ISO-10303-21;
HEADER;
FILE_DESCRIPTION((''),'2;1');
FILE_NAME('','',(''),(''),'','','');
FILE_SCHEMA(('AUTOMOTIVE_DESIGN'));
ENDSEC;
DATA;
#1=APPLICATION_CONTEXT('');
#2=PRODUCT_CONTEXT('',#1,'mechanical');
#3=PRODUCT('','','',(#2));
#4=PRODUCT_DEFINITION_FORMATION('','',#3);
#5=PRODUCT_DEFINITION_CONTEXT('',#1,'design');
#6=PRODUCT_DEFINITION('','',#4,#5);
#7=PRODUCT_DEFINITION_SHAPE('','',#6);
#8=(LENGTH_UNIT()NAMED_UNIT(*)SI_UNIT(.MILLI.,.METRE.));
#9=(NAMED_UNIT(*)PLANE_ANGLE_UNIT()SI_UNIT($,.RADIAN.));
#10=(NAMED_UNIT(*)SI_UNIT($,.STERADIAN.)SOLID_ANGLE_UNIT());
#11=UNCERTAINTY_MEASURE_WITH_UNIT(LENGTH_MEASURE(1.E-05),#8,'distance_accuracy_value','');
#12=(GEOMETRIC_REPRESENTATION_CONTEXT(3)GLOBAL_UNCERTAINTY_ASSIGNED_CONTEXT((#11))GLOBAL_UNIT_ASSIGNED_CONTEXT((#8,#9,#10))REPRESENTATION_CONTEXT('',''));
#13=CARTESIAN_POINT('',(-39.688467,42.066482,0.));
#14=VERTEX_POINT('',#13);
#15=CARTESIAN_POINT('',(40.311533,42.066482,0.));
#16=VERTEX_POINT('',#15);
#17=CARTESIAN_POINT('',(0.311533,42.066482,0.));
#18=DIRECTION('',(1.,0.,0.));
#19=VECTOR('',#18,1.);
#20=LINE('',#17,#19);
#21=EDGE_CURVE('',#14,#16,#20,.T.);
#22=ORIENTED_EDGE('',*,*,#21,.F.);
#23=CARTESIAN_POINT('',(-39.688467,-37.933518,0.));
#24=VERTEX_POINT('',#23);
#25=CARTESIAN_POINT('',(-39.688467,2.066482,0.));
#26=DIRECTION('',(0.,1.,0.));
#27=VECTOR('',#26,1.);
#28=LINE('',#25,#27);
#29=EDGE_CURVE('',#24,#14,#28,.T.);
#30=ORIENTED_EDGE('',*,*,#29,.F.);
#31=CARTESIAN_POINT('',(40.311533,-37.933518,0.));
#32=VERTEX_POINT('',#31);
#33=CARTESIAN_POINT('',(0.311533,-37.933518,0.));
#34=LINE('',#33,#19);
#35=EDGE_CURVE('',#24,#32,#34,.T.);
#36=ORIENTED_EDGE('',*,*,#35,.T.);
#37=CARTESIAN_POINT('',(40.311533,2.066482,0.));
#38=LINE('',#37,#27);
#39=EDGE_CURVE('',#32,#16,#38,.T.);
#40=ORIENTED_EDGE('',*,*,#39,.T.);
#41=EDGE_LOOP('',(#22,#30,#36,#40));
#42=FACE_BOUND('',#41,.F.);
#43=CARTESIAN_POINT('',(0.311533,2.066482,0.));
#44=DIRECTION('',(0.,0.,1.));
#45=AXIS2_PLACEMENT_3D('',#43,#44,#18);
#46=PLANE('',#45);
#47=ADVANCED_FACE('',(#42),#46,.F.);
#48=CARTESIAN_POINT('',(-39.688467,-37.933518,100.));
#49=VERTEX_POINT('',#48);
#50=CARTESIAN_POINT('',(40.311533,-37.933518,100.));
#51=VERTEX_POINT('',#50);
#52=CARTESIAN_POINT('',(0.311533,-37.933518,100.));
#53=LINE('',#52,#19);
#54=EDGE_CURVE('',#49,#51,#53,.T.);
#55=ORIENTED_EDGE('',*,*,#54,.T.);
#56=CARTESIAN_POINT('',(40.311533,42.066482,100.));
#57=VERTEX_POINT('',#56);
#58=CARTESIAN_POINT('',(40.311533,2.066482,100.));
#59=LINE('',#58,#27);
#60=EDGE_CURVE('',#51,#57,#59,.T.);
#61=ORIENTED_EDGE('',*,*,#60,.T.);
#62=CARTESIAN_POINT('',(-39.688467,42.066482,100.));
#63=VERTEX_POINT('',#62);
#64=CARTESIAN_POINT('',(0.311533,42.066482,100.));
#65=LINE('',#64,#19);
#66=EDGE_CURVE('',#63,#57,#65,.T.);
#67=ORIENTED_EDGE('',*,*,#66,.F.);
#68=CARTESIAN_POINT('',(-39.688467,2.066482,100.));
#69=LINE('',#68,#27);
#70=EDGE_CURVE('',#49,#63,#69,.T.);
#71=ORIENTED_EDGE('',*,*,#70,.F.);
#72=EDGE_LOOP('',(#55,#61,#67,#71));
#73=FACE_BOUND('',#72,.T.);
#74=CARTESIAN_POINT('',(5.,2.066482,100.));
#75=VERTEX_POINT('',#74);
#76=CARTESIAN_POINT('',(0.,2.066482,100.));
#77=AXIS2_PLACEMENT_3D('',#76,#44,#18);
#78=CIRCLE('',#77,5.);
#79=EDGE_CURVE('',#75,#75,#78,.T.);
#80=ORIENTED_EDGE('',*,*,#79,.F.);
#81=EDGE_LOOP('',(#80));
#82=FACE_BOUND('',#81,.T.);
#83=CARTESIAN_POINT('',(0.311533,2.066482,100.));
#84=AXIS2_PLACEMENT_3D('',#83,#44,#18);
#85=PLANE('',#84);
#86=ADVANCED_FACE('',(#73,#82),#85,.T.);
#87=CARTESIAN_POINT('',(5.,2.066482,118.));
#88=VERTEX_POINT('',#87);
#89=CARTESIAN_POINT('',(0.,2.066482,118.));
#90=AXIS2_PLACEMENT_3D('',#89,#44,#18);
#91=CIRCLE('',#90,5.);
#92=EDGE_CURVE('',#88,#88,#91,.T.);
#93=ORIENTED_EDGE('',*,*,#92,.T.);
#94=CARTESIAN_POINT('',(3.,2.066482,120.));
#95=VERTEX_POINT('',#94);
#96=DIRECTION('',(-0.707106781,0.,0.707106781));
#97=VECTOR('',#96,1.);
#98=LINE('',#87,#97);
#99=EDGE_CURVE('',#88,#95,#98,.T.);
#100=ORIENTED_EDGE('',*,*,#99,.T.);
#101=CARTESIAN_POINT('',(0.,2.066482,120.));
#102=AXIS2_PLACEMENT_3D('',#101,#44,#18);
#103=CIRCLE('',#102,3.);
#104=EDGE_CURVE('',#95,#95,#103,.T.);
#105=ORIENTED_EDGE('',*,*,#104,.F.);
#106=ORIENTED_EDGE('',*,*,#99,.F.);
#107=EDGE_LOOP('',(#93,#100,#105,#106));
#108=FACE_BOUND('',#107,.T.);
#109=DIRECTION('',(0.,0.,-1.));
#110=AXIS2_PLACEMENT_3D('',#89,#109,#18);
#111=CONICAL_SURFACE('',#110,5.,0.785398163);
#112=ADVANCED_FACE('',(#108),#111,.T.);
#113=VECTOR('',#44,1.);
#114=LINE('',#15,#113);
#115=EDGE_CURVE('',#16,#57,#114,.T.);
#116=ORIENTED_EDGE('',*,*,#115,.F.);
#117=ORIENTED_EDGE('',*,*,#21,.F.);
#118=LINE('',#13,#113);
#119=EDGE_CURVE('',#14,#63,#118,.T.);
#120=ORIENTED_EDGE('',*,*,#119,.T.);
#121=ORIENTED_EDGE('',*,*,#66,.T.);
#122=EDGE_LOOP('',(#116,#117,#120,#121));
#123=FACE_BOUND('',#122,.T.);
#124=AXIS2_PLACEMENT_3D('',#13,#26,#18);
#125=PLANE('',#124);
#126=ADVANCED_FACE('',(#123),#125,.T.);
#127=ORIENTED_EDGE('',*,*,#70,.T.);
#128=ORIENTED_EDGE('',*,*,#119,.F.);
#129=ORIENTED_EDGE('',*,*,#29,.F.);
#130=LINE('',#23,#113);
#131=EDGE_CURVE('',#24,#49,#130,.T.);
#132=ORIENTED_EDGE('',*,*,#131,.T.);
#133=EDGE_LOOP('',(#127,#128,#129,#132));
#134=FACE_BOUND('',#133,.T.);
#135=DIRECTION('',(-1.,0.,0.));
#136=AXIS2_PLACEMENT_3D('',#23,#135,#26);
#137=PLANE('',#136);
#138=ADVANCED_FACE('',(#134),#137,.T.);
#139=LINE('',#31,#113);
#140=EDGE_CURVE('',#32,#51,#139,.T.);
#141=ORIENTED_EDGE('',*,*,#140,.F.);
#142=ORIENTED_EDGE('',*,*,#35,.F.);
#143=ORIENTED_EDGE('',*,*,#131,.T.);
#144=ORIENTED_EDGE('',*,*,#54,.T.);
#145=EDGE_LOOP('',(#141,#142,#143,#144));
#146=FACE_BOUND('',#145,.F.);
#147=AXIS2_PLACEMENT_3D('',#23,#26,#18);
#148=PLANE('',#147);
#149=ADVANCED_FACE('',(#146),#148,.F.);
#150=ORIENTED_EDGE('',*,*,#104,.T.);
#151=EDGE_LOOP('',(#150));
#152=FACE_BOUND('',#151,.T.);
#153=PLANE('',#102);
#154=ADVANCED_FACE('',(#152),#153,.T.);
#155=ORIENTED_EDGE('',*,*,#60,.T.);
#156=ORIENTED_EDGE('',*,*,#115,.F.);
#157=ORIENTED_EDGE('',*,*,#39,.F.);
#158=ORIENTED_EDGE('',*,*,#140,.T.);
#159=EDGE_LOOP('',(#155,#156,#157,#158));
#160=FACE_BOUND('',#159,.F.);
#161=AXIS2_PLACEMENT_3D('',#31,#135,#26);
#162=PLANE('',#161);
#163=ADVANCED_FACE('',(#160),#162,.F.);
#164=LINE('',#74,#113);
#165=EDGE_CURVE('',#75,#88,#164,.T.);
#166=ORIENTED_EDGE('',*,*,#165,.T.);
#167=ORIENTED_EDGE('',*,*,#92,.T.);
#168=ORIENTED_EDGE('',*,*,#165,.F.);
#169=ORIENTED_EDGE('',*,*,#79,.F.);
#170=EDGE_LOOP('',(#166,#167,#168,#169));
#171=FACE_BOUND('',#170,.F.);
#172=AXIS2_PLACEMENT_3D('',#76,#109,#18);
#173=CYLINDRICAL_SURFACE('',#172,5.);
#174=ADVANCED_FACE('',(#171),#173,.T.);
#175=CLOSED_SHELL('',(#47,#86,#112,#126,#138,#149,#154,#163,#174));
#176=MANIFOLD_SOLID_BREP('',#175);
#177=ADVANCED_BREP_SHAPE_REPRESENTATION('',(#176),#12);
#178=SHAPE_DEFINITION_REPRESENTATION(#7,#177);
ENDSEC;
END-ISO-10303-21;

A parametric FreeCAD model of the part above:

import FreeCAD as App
import Part
import Sketcher

V = App.Vector


def edges_at(feature, points):
    """Names of the edges that pass closest to the given points."""
    edges = feature.Shape.Edges
    near = lambda p: min(range(len(edges)), key=lambda i: edges[i].distToShape(Part.Vertex(*p))[0])
    return sorted({f"Edge{near(p) + 1}" for p in points})


def add_polygon(sketch, points):
    """Adds a closed chain of lines whose ends are joined by coincident constraints."""
    first, n = sketch.GeometryCount, len(points)
    for a, b in zip(points, points[1:] + points[:1]):
        sketch.addGeometry(Part.LineSegment(App.Vector(*a, 0), App.Vector(*b, 0)), False)
    for i in range(n):
        sketch.addConstraint(Sketcher.Constraint("Coincident", first + i, 2, first + (i + 1) % n, 1))

doc = App.newDocument("Part")
body = doc.addObject("PartDesign::Body", "Body")

sketch1 = body.newObject("Sketcher::SketchObject", "Sketch")
sketch1.AttachmentSupport = (doc.getObject("XY_Plane"), [""])
sketch1.MapMode = "FlatFace"
add_polygon(sketch1, [(-40, 42), (-40, -38), (40, -38), (40, 42)])
sketch1.addConstraint([
    Sketcher.Constraint("Vertical", 0),
    Sketcher.Constraint("Horizontal", 1),
    Sketcher.Constraint("Vertical", 2),
    Sketcher.Constraint("Horizontal", 3),
    Sketcher.Constraint("Equal", 3, 0),
    Sketcher.Constraint("DistanceX", 1, 1, 1, 2, 80.0),
    Sketcher.Constraint("DistanceX", 0, 2, -1, 1, 39.688467),
    Sketcher.Constraint("DistanceY", 0, 2, -1, 1, 37.933518),
])
pad1 = body.newObject("PartDesign::Pad", "Pad")
pad1.Profile = sketch1
pad1.Length = 100

sketch2 = body.newObject("Sketcher::SketchObject", "Sketch001")
sketch2.AttachmentSupport = (doc.getObject("XY_Plane"), [""])
sketch2.MapMode = "FlatFace"
sketch2.AttachmentOffset = App.Placement(V(0, 0, 100), App.Rotation())
sketch2.addGeometry(Part.Circle(V(0, 2, 0), V(0, 0, 1), 5), False)
sketch2.addConstraint([
    Sketcher.Constraint("PointOnObject", 0, 3, -2),
    Sketcher.Constraint("Diameter", 0, 10.0),
    Sketcher.Constraint("DistanceY", -1, 1, 0, 3, 2.066482),
])
pad2 = body.newObject("PartDesign::Pad", "Pad001")
pad2.Profile = sketch2
pad2.Length = 20
doc.recompute()

chamfer = body.newObject("PartDesign::Chamfer", "Chamfer")
chamfer.Base = (pad2, edges_at(pad2, [(-5, 2.066, 120)]))
chamfer.Size = 2

doc.recompute()
